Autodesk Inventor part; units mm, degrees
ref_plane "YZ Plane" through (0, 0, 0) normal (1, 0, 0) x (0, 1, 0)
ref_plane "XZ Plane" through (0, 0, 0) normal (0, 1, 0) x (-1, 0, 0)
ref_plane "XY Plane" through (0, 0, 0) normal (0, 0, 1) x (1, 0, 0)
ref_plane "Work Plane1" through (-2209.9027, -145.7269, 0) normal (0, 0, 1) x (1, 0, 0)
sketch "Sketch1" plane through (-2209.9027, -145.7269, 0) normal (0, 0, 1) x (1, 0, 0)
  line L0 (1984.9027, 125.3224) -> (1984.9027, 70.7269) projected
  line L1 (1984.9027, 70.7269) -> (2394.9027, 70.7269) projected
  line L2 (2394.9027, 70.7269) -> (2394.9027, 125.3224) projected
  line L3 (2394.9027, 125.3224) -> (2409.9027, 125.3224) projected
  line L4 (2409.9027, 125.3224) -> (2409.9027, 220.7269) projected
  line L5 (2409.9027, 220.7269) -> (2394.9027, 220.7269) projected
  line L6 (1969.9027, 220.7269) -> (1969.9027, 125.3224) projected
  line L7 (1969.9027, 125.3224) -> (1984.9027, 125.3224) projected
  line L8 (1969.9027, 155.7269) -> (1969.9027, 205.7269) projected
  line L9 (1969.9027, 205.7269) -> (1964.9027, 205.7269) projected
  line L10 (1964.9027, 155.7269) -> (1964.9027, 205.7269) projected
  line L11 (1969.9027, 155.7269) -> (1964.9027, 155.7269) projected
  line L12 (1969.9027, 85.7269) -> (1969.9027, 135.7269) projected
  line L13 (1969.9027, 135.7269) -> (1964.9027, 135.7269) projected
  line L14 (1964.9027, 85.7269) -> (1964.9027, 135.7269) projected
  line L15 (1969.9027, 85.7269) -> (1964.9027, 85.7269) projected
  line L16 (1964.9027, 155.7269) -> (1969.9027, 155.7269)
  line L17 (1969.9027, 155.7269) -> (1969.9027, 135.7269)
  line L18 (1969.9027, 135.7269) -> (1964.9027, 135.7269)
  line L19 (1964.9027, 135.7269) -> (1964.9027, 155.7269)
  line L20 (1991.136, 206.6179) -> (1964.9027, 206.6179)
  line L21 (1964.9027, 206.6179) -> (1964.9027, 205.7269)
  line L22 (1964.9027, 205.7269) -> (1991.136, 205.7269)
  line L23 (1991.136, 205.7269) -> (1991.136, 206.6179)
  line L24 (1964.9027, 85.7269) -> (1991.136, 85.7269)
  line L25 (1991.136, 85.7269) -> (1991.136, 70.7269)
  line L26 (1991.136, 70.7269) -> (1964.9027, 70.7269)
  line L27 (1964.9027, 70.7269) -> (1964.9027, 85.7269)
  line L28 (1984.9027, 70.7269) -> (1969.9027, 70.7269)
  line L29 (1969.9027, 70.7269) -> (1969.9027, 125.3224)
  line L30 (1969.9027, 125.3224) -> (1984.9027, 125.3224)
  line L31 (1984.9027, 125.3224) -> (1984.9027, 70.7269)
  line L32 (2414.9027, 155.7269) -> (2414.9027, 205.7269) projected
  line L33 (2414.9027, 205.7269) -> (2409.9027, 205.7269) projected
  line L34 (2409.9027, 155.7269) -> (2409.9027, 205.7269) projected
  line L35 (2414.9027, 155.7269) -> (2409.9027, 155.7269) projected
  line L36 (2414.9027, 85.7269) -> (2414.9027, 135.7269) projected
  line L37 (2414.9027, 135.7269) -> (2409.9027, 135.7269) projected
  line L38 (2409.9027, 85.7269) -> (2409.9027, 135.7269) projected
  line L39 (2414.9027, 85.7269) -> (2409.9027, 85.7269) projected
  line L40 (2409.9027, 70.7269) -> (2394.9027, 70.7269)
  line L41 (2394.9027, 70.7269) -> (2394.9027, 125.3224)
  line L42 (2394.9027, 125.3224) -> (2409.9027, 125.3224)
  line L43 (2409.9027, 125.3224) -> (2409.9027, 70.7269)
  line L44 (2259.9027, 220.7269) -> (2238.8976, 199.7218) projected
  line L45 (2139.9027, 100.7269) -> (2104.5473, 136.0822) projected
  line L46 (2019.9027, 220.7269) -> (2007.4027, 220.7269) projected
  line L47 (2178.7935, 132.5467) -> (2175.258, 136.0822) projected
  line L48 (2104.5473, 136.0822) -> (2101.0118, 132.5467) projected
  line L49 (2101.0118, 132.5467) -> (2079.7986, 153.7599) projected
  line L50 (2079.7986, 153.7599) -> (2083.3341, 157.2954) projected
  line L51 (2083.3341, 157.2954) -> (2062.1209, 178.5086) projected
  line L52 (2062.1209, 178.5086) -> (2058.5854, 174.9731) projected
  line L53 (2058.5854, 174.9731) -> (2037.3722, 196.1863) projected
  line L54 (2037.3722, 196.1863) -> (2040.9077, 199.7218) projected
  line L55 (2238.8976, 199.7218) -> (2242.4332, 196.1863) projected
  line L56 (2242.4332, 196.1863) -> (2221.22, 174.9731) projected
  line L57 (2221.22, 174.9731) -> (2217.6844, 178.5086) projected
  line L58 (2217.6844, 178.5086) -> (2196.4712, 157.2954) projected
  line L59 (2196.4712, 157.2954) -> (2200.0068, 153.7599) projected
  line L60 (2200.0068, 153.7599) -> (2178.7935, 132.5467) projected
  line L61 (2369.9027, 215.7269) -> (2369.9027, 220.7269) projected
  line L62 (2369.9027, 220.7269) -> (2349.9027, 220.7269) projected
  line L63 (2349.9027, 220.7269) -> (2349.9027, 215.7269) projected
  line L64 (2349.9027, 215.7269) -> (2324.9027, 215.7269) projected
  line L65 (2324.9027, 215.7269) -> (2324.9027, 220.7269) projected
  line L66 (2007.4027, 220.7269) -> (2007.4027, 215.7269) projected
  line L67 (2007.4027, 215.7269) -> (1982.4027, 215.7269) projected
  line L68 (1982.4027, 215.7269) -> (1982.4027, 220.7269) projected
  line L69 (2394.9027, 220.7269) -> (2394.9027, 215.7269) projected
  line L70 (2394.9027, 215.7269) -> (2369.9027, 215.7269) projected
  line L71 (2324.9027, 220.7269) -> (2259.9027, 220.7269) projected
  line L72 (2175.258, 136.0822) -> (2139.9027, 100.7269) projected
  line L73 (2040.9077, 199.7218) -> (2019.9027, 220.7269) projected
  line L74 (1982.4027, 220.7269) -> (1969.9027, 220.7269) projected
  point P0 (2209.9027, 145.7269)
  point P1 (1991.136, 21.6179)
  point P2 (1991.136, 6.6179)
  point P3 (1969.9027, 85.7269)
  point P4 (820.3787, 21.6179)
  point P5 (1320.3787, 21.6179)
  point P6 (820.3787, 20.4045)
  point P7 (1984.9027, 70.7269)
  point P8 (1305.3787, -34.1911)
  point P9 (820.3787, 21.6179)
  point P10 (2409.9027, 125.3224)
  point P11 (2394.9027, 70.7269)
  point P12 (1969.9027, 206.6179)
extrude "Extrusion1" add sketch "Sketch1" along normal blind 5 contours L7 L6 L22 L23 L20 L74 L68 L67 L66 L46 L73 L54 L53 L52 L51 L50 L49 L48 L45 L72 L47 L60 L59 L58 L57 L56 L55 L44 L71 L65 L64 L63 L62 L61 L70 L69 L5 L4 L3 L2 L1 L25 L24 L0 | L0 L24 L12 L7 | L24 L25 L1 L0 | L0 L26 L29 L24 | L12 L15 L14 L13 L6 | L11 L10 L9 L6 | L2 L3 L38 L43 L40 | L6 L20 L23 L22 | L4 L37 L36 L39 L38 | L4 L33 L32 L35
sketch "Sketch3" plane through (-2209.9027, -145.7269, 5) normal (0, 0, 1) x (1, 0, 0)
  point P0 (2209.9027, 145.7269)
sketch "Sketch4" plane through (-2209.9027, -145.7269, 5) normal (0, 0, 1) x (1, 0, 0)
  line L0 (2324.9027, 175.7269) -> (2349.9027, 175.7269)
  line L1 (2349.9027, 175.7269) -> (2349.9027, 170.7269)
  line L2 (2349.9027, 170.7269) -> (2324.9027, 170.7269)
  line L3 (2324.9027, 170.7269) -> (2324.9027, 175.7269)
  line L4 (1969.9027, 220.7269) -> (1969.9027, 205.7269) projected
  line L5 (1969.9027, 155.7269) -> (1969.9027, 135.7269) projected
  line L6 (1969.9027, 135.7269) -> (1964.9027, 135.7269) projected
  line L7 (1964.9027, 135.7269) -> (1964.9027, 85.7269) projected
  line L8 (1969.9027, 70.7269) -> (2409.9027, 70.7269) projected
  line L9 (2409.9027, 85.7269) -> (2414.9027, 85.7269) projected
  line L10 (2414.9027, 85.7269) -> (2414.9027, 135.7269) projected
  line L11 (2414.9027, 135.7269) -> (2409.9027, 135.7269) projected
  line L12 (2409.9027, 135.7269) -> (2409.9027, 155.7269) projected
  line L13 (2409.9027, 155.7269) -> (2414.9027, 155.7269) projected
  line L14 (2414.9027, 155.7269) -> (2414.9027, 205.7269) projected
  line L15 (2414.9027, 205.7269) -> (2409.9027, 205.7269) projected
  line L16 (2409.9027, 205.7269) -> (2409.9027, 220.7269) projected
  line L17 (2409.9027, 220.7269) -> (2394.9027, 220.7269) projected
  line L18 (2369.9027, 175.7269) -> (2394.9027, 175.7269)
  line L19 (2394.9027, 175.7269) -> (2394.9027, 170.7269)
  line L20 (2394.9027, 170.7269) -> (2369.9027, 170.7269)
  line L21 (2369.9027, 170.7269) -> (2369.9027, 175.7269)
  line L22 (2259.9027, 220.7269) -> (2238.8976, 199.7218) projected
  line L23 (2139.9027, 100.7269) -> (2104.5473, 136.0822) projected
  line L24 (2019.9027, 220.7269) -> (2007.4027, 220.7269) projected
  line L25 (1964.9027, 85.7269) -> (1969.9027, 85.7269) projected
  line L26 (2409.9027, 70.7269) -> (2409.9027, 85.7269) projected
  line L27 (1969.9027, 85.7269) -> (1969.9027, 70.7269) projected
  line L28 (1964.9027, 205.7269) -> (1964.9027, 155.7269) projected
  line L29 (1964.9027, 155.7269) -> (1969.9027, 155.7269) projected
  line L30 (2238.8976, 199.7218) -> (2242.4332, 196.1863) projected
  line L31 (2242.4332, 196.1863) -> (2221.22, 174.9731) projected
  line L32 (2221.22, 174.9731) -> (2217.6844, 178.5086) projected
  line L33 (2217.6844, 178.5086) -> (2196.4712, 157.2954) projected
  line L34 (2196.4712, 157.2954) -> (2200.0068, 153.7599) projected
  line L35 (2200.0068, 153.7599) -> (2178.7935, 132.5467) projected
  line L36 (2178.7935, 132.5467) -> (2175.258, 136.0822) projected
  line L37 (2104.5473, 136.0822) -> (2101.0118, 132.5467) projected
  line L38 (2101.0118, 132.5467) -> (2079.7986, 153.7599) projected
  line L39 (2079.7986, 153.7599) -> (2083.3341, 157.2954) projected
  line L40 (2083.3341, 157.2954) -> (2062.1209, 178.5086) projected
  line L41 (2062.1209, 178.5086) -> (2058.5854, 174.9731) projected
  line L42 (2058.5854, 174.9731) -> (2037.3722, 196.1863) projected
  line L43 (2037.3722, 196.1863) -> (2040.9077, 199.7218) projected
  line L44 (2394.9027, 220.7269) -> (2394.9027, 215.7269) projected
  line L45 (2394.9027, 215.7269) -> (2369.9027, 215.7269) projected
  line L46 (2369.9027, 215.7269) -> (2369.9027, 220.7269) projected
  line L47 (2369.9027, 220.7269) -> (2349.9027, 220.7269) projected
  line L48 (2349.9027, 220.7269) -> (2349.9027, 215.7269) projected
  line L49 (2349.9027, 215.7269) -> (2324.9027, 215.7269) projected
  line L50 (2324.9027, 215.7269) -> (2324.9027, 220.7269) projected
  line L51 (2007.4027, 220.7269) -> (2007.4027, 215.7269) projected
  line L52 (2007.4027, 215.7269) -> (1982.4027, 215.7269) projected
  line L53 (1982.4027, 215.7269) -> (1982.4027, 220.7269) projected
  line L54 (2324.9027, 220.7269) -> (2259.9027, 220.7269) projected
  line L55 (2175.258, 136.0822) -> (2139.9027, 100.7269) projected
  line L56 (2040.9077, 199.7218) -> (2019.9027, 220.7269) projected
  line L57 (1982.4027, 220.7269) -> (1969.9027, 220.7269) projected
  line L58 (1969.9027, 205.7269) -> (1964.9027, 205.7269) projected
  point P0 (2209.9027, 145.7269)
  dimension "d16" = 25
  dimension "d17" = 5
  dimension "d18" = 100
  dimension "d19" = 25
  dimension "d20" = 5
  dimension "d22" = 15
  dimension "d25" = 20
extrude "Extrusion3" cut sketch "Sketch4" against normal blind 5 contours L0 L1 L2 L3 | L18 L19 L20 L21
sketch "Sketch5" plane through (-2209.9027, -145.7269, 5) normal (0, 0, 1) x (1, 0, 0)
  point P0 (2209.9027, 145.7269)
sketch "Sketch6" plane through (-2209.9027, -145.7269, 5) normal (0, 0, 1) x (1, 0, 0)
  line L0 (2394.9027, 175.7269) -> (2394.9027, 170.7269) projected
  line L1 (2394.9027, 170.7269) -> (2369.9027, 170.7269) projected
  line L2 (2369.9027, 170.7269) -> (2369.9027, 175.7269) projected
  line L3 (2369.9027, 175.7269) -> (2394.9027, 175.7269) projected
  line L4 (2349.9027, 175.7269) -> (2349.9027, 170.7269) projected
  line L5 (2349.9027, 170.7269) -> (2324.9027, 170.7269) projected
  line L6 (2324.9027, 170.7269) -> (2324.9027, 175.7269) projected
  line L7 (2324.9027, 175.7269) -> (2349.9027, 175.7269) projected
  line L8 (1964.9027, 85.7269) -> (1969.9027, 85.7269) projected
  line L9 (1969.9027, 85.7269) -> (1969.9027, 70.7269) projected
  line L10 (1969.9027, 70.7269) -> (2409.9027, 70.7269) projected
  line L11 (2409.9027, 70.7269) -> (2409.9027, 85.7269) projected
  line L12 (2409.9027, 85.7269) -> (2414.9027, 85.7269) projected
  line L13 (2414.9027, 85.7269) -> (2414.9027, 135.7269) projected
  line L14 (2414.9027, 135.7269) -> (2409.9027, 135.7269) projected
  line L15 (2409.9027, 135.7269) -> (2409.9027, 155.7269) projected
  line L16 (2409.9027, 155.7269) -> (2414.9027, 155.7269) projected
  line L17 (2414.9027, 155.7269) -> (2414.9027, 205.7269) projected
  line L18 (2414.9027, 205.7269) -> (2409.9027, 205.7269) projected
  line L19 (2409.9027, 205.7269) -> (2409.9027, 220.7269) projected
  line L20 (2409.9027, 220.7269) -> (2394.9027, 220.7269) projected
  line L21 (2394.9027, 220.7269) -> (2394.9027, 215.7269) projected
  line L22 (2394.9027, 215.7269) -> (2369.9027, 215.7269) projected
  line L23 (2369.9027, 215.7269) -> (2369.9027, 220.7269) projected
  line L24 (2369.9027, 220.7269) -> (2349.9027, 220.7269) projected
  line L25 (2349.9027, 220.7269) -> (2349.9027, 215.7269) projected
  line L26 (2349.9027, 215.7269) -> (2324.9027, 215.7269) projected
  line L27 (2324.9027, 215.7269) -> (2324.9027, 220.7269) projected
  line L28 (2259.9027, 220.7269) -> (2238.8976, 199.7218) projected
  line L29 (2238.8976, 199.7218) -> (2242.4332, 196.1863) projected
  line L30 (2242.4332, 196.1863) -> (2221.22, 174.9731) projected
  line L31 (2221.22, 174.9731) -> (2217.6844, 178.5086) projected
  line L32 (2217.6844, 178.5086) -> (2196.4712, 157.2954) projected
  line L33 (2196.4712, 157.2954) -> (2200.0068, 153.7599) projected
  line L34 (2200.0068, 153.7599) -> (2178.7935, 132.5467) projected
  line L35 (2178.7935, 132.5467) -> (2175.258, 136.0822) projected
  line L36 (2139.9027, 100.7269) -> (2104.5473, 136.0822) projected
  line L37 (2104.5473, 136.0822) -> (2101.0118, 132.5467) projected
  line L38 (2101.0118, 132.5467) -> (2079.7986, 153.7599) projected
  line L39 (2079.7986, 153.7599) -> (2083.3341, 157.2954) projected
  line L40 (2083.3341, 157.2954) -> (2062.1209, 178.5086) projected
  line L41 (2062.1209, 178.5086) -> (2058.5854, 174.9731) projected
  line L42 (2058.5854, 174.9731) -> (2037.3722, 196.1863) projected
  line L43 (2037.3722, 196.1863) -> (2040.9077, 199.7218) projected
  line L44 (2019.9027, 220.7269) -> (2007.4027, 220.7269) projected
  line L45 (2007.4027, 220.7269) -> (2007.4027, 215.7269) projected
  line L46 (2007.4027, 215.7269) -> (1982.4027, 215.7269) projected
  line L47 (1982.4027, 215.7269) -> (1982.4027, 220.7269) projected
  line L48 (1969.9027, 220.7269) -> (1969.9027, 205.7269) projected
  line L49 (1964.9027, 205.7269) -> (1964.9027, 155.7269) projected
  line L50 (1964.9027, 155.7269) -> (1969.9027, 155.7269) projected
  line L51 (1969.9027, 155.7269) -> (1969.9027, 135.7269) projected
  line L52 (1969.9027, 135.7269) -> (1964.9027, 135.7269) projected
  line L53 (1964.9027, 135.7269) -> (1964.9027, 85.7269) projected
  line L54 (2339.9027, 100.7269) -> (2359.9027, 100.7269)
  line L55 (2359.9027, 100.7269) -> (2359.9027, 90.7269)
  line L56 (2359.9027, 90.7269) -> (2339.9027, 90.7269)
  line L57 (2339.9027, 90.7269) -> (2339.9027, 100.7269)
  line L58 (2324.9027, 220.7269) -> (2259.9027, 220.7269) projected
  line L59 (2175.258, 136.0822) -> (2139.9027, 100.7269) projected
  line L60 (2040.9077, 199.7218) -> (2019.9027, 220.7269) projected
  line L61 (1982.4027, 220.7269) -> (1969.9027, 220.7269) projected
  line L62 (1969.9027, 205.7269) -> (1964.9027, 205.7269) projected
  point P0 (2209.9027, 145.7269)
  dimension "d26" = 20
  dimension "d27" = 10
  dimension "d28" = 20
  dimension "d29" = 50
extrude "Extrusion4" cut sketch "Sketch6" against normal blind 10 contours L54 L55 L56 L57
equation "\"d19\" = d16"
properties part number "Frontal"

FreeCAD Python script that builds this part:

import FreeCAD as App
import Part
import Sketcher
from FreeCAD import Vector
Q = App.Units.Quantity


def add_polygon(sketch, points):
    """Adds a closed chain of lines whose ends are joined by coincident constraints."""
    first, n = sketch.GeometryCount, len(points)
    for a, b in zip(points, points[1:] + points[:1]):
        sketch.addGeometry(Part.LineSegment(App.Vector(*a, 0), App.Vector(*b, 0)), False)
    for i in range(n):
        sketch.addConstraint(Sketcher.Constraint("Coincident", first + i, 2, first + (i + 1) % n, 1))

doc = App.newDocument("Part")
params = doc.addObject("Spreadsheet::Sheet", "Params")
for row, (alias, value) in enumerate([
    ("sketch1_width", "5 mm"),
    ("sketch1_width2", "440 mm"),
    ("sketch1_width3", "15 mm"),
    ("sketch1_width4", "25 mm"),
    ("sketch1_width5", "20 mm"),
    ("pad1_length", "5 mm"),
    ("sketch2_width", "25 mm"),
    ("sketch2_height", "5 mm"),
    ("pocket1_length", "5 mm"),
    ("sketch3_width", "20 mm"),
    ("sketch3_height", "10 mm"),
    ("pocket2_length", "10 mm"),
], start=1):
    params.set(f"A{row}", alias)
    params.set(f"B{row}", "=" + value)
    params.setAlias(f"B{row}", alias)

body = doc.addObject("PartDesign::Body", "Body")

# Sketch on XY plane
sketch1 = body.newObject("Sketcher::SketchObject", "Sketch")
sketch1.AttachmentSupport = (doc.getObject("XY_Plane"), [""])
sketch1.MapMode = "FlatFace"
add_polygon(sketch1, [(-240, 10), (-240, -10), (-245, -10), (-245, -60), (-240, -60), (-240, -75), (200, -75), (200, -60), (205, -60), (205, -10), (200, -10), (200, 10), (205, 10), (205, 60), (200, 60), (200, 75), (185, 75), (185, 70), (160, 70), (160, 75), (140, 75), (140, 70), (115, 70), (115, 75), (50, 75), (28.9949, 53.9949), (32.5305, 50.4594), (11.3173, 29.2462), (7.7817, 32.7817), (-13.4315, 11.5685), (-9.8959, 8.033), (-31.1092, -13.1802), (-34.6447, -9.6447), (-70, -45), (-105.3554, -9.6447), (-108.8909, -13.1802), (-130.1041, 8.033), (-126.5686, 11.5685), (-147.7818, 32.7817), (-151.3173, 29.2462), (-172.5305, 50.4594), (-168.995, 53.9949), (-190, 75), (-202.5, 75), (-202.5, 70), (-227.5, 70), (-227.5, 75), (-240, 75), (-240, 60), (-245, 60), (-245, 10)])  # lines 0-50
sketch1.addConstraint([
    Sketcher.Constraint("Vertical", 0),
    Sketcher.Constraint("Horizontal", 1),
    Sketcher.Constraint("Vertical", 2),
    Sketcher.Constraint("Horizontal", 3),
    Sketcher.Constraint("Vertical", 4),
    Sketcher.Constraint("Horizontal", 5),
    Sketcher.Constraint("Vertical", 6),
    Sketcher.Constraint("Horizontal", 7),
    Sketcher.Constraint("Vertical", 8),
    Sketcher.Constraint("Horizontal", 9),
    Sketcher.Constraint("Vertical", 10),
    Sketcher.Constraint("Horizontal", 11),
    Sketcher.Constraint("Vertical", 12),
    Sketcher.Constraint("Horizontal", 13),
    Sketcher.Constraint("Vertical", 14),
    Sketcher.Constraint("Horizontal", 15),
    Sketcher.Constraint("Vertical", 16),
    Sketcher.Constraint("Horizontal", 17),
    Sketcher.Constraint("Vertical", 18),
    Sketcher.Constraint("Horizontal", 19),
    Sketcher.Constraint("Vertical", 20),
    Sketcher.Constraint("Horizontal", 21),
    Sketcher.Constraint("Vertical", 22),
    Sketcher.Constraint("Horizontal", 23),
    Sketcher.Constraint("Horizontal", 42),
    Sketcher.Constraint("Vertical", 43),
    Sketcher.Constraint("Horizontal", 44),
    Sketcher.Constraint("Vertical", 45),
    Sketcher.Constraint("Horizontal", 46),
    Sketcher.Constraint("Vertical", 47),
    Sketcher.Constraint("Horizontal", 48),
    Sketcher.Constraint("Vertical", 49),
    Sketcher.Constraint("Horizontal", 50),
    Sketcher.Constraint("Symmetric", 8, 2, 11, 2, -1),
    Sketcher.Constraint("Symmetric", 6, 2, 13, 2, -1),
    Sketcher.Constraint("Symmetric", 4, 2, 46, 2, -1),
    Sketcher.Constraint("Symmetric", 2, 2, 48, 2, -1),
    Sketcher.Constraint("Perpendicular", 24, 25),
    Sketcher.Constraint("Perpendicular", 25, 26),
    Sketcher.Constraint("Perpendicular", 26, 27),
    Sketcher.Constraint("Perpendicular", 27, 28),
    Sketcher.Constraint("Perpendicular", 28, 29),
    Sketcher.Constraint("Perpendicular", 29, 30),
    Sketcher.Constraint("Perpendicular", 30, 31),
    Sketcher.Constraint("Perpendicular", 31, 32),
    Sketcher.Constraint("Perpendicular", 32, 33),
    Sketcher.Constraint("Perpendicular", 33, 34),
    Sketcher.Constraint("Perpendicular", 34, 35),
    Sketcher.Constraint("Perpendicular", 35, 36),
    Sketcher.Constraint("Perpendicular", 36, 37),
    Sketcher.Constraint("Perpendicular", 37, 38),
    Sketcher.Constraint("Perpendicular", 38, 39),
    Sketcher.Constraint("Perpendicular", 39, 40),
    Sketcher.Constraint("Perpendicular", 40, 41),
    Sketcher.Constraint("Horizontal", 3, 2, 6, 2),
    Sketcher.Constraint("Horizontal", 1, 2, 8, 2),
    Sketcher.Constraint("Horizontal", 15, 2, 18, 2),
    Sketcher.Constraint("Horizontal", 17, 2, 20, 2),
    Sketcher.Constraint("Horizontal", 19, 2, 22, 2),
    Sketcher.Constraint("Horizontal", 31, 2, 33, 2),
    Sketcher.Constraint("Horizontal", 30, 2, 34, 2),
    Sketcher.Constraint("Horizontal", 29, 2, 35, 2),
    Sketcher.Constraint("Horizontal", 28, 2, 36, 2),
    Sketcher.Constraint("Horizontal", 27, 2, 37, 2),
    Sketcher.Constraint("Horizontal", 26, 2, 38, 2),
    Sketcher.Constraint("Horizontal", 25, 2, 39, 2),
    Sketcher.Constraint("Horizontal", 24, 2, 40, 2),
    Sketcher.Constraint("Horizontal", 23, 2, 41, 2),
    Sketcher.Constraint("Horizontal", 21, 2, 43, 2),
    Sketcher.Constraint("Horizontal", 42, 2, 45, 2),
    Sketcher.Constraint("Horizontal", 11, 2, 49, 2),
    Sketcher.Constraint("Vertical", 0, 2, 3, 2),
    Sketcher.Constraint("Vertical", 6, 2, 9, 2),
    Sketcher.Constraint("Equal", 3, 7),
    Sketcher.Constraint("Equal", 17, 21),
    Sketcher.Constraint("Equal", 21, 44),
    Sketcher.Constraint("Equal", 42, 46),
    Sketcher.Constraint("Equal", 19, 0),
    Sketcher.Constraint("Equal", 15, 4),
    Sketcher.Constraint("Equal", 50, 16),
    Sketcher.Constraint("Equal", 25, 27),
    Sketcher.Constraint("Equal", 26, 28),
    Sketcher.Constraint("Equal", 27, 29),
    Sketcher.Constraint("Equal", 28, 30),
    Sketcher.Constraint("Equal", 29, 31),
    Sketcher.Constraint("Equal", 32, 33),
    Sketcher.Constraint("DistanceX", 1, 2, 1, 1, Q("5 mm")),
    Sketcher.Constraint("DistanceX", 5, 1, 5, 2, Q("440 mm")),
    Sketcher.Constraint("DistanceX", 15, 2, 15, 1, Q("15 mm")),
    Sketcher.Constraint("DistanceX", 17, 2, 17, 1, Q("25 mm")),
    Sketcher.Constraint("DistanceX", 19, 2, 19, 1, Q("20 mm")),
    Sketcher.Constraint("DistanceX", 23, 2, 23, 1, Q("65 mm")),
    Sketcher.Constraint("DistanceY", 2, 2, 2, 1, Q("50 mm")),
    Sketcher.Constraint("Distance", 25, Q("5 mm")),
    Sketcher.Constraint("Distance", 26, Q("30 mm")),
    Sketcher.Constraint("Distance", 32, Q("50 mm")),
    Sketcher.Constraint("DistanceX", 42, 2, 42, 1, Q("12.5 mm")),
    Sketcher.Constraint("DistanceX", 0, 2, -1, 1, Q("240 mm")),
])
sketch1.setExpression("Constraints[137]", "Params.sketch1_width")
sketch1.setExpression("Constraints[138]", "Params.sketch1_width2")
sketch1.setExpression("Constraints[139]", "Params.sketch1_width3")
sketch1.setExpression("Constraints[140]", "Params.sketch1_width4")
sketch1.setExpression("Constraints[141]", "Params.sketch1_width5")
pad1 = body.newObject("PartDesign::Pad", "Pad")
pad1.Profile = sketch1
pad1.setExpression("Length", "Params.pad1_length")

# Sketch on XY plane
sketch2 = body.newObject("Sketcher::SketchObject", "Sketch001")
sketch2.AttachmentSupport = (doc.getObject("XY_Plane"), [""])
sketch2.MapMode = "FlatFace"
sketch2.AttachmentOffset = App.Placement(Vector(0, 0, 5), App.Rotation())
add_polygon(sketch2, [(140, 30), (115, 30), (115, 25), (140, 25)])  # lines 0-3
add_polygon(sketch2, [(185, 30), (160, 30), (160, 25), (185, 25)])  # lines 4-7
sketch2.addConstraint([
    Sketcher.Constraint("Horizontal", 0),
    Sketcher.Constraint("Vertical", 1),
    Sketcher.Constraint("Horizontal", 2),
    Sketcher.Constraint("Vertical", 3),
    Sketcher.Constraint("Horizontal", 4),
    Sketcher.Constraint("Vertical", 5),
    Sketcher.Constraint("Horizontal", 6),
    Sketcher.Constraint("Vertical", 7),
    Sketcher.Constraint("Horizontal", 3, 2, 4, 2),
    Sketcher.Constraint("Horizontal", 2, 2, 5, 2),
    Sketcher.Constraint("Equal", 2, 4),
    Sketcher.Constraint("DistanceX", 0, 2, 0, 1, Q("25 mm")),
    Sketcher.Constraint("DistanceY", 1, 2, 1, 1, Q("5 mm")),
    Sketcher.Constraint("DistanceY", -1, 1, 1, 2, Q("25 mm")),
    Sketcher.Constraint("DistanceX", 3, 2, 4, 2, Q("20 mm")),
    Sketcher.Constraint("DistanceX", -1, 1, 0, 2, Q("115 mm")),
])
sketch2.setExpression("Constraints[19]", "Params.sketch2_width")
sketch2.setExpression("Constraints[20]", "Params.sketch2_height")
pocket1 = body.newObject("PartDesign::Pocket", "Pocket")
pocket1.Profile = sketch2
pocket1.setExpression("Length", "Params.pocket1_length")

# Sketch on XY plane
sketch3 = body.newObject("Sketcher::SketchObject", "Sketch002")
sketch3.AttachmentSupport = (doc.getObject("XY_Plane"), [""])
sketch3.MapMode = "FlatFace"
sketch3.AttachmentOffset = App.Placement(Vector(0, 0, 5), App.Rotation())
add_polygon(sketch3, [(150, -45), (130, -45), (130, -55), (150, -55)])  # lines 0-3
sketch3.addConstraint([
    Sketcher.Constraint("Horizontal", 0),
    Sketcher.Constraint("Vertical", 1),
    Sketcher.Constraint("Horizontal", 2),
    Sketcher.Constraint("Vertical", 3),
    Sketcher.Constraint("DistanceX", 0, 2, 0, 1, Q("20 mm")),
    Sketcher.Constraint("DistanceY", 1, 2, 1, 1, Q("10 mm")),
    Sketcher.Constraint("DistanceX", -1, 1, 0, 2, Q("130 mm")),
    Sketcher.Constraint("DistanceY", 0, 2, -1, 1, Q("45 mm")),
])
sketch3.setExpression("Constraints[8]", "Params.sketch3_width")
sketch3.setExpression("Constraints[9]", "Params.sketch3_height")
pocket2 = body.newObject("PartDesign::Pocket", "Pocket001")
pocket2.Profile = sketch3
pocket2.setExpression("Length", "Params.pocket2_length")

doc.recompute()
